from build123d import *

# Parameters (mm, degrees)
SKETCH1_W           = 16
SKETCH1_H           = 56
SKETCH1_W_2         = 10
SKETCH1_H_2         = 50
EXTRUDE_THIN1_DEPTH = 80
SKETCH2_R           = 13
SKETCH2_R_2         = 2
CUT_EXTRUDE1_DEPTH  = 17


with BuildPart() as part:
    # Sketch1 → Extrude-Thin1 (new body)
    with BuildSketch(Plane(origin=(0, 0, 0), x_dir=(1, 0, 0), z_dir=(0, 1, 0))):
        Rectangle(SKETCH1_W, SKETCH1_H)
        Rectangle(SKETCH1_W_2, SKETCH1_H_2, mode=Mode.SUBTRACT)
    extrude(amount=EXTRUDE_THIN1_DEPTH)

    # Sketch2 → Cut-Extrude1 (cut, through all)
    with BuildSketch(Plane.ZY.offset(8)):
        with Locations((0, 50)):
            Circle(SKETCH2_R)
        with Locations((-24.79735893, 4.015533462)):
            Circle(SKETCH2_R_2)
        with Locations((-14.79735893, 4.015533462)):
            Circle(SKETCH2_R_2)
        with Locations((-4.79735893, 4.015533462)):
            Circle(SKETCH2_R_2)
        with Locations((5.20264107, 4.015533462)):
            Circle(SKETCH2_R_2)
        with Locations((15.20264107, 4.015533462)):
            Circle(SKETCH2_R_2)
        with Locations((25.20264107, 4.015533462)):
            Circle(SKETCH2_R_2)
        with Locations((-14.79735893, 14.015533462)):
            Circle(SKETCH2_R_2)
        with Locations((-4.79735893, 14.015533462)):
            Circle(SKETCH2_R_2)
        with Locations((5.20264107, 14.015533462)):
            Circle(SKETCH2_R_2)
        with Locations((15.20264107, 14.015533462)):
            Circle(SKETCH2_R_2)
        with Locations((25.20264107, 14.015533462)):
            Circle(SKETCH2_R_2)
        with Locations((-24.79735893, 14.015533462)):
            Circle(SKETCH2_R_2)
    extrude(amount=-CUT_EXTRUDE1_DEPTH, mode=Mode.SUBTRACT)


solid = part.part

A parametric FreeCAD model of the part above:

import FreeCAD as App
import Part
import Sketcher

V = App.Vector
Q = App.Units.Quantity

doc = App.newDocument("Part")
body = doc.addObject("PartDesign::Body", "Body")

sketch1 = body.newObject("Sketcher::SketchObject", "Sketch")
sketch1.AttachmentSupport = (doc.getObject("XZ_Plane"), [""])
sketch1.MapMode = "FlatFace"
sketch1.addGeometry([
    Part.LineSegment(V(-8, -28, 0), V(-8, 28, 0)),
    Part.LineSegment(V(-8, 28, 0), V(8, 28, 0)),
    Part.LineSegment(V(8, 28, 0), V(8, -28, 0)),
    Part.LineSegment(V(8, -28, 0), V(-8, -28, 0)),
    Part.LineSegment(V(5, 25, 0), V(-5, 25, 0)),
    Part.LineSegment(V(-5, 25, 0), V(-5, -25, 0)),
    Part.LineSegment(V(-5, -25, 0), V(5, -25, 0)),
    Part.LineSegment(V(5, -25, 0), V(5, 25, 0)),
], False)
sketch1.addConstraint([
    Sketcher.Constraint("Coincident", 0, 2, 1, 1),
    Sketcher.Constraint("Coincident", 1, 2, 2, 1),
    Sketcher.Constraint("Coincident", 2, 2, 3, 1),
    Sketcher.Constraint("Coincident", 3, 2, 0, 1),
    Sketcher.Constraint("Coincident", 4, 2, 5, 1),
    Sketcher.Constraint("Coincident", 5, 2, 6, 1),
    Sketcher.Constraint("Coincident", 6, 2, 7, 1),
    Sketcher.Constraint("Coincident", 7, 2, 4, 1),
    Sketcher.Constraint("Vertical", 0),
    Sketcher.Constraint("Horizontal", 1),
    Sketcher.Constraint("Vertical", 2),
    Sketcher.Constraint("Horizontal", 3),
    Sketcher.Constraint("Horizontal", 4),
    Sketcher.Constraint("Vertical", 5),
    Sketcher.Constraint("Horizontal", 6),
    Sketcher.Constraint("Vertical", 7),
    Sketcher.Constraint("Symmetric", 0, 2, 2, 2, -1, 1),
    Sketcher.Constraint("Symmetric", 4, 2, 6, 2, -1, 1),
    Sketcher.Constraint("DistanceX", 1, 1, 1, 2, Q("16 mm")),
    Sketcher.Constraint("DistanceX", 4, 2, 4, 1, Q("10 mm")),
    Sketcher.Constraint("DistanceY", 0, 1, 0, 2, Q("56 mm")),
    Sketcher.Constraint("DistanceY", 5, 2, 5, 1, Q("50 mm")),
])
pad1 = body.newObject("PartDesign::Pad", "Pad")
pad1.Profile = sketch1
pad1.Length = 80
pad1.Reversed = True

sketch2 = body.newObject("Sketcher::SketchObject", "Sketch001")
sketch2.AttachmentSupport = (doc.getObject("YZ_Plane"), [""])
sketch2.MapMode = "FlatFace"
sketch2.AttachmentOffset = App.Placement(V(0, 0, -8), App.Rotation())
sketch2.addGeometry([
    Part.Circle(V(50, 0, 0), V(0, 0, 1), 13),
    Part.Circle(V(4.015533, -24.797359, 0), V(0, 0, 1), 2),
    Part.Circle(V(4.015533, -14.797359, 0), V(0, 0, 1), 2),
    Part.Circle(V(4.015533, -4.797359, 0), V(0, 0, 1), 2),
    Part.Circle(V(4.015533, 5.202641, 0), V(0, 0, 1), 2),
    Part.Circle(V(4.015533, 15.202641, 0), V(0, 0, 1), 2),
    Part.Circle(V(4.015533, 25.202641, 0), V(0, 0, 1), 2),
    Part.Circle(V(14.015533, -14.797359, 0), V(0, 0, 1), 2),
    Part.Circle(V(14.015533, -4.797359, 0), V(0, 0, 1), 2),
    Part.Circle(V(14.015533, 5.202641, 0), V(0, 0, 1), 2),
    Part.Circle(V(14.015533, 15.202641, 0), V(0, 0, 1), 2),
    Part.Circle(V(14.015533, 25.202641, 0), V(0, 0, 1), 2),
    Part.Circle(V(14.015533, -24.797359, 0), V(0, 0, 1), 2),
], False)
sketch2.addConstraint([
    Sketcher.Constraint("Equal", 1, 2),
    Sketcher.Constraint("Equal", 2, 3),
    Sketcher.Constraint("Equal", 3, 4),
    Sketcher.Constraint("Equal", 4, 5),
    Sketcher.Constraint("Equal", 5, 6),
    Sketcher.Constraint("Equal", 6, 7),
    Sketcher.Constraint("Equal", 7, 8),
    Sketcher.Constraint("Equal", 8, 9),
    Sketcher.Constraint("Equal", 9, 10),
    Sketcher.Constraint("Equal", 10, 11),
    Sketcher.Constraint("Equal", 11, 12),
    Sketcher.Constraint("PointOnObject", 0, 3, -1),
    Sketcher.Constraint("Horizontal", 2, 3, 7, 3),
    Sketcher.Constraint("Horizontal", 3, 3, 8, 3),
    Sketcher.Constraint("Horizontal", 4, 3, 9, 3),
    Sketcher.Constraint("Horizontal", 5, 3, 10, 3),
    Sketcher.Constraint("Horizontal", 6, 3, 11, 3),
    Sketcher.Constraint("Horizontal", 1, 3, 12, 3),
    Sketcher.Constraint("Vertical", 1, 3, 2, 3),
    Sketcher.Constraint("Vertical", 2, 3, 3, 3),
    Sketcher.Constraint("Vertical", 3, 3, 4, 3),
    Sketcher.Constraint("Vertical", 4, 3, 5, 3),
    Sketcher.Constraint("Vertical", 5, 3, 6, 3),
    Sketcher.Constraint("Vertical", 7, 3, 8, 3),
    Sketcher.Constraint("Vertical", 8, 3, 9, 3),
    Sketcher.Constraint("Vertical", 9, 3, 10, 3),
    Sketcher.Constraint("Vertical", 10, 3, 11, 3),
    Sketcher.Constraint("Vertical", 11, 3, 12, 3),
    Sketcher.Constraint("Diameter", 0, Q("26 mm")),
    Sketcher.Constraint("Diameter", 1, Q("4 mm")),
    Sketcher.Constraint("DistanceX", -1, 1, 0, 3, Q("50 mm")),
    Sketcher.Constraint("DistanceY", 1, 3, 2, 3, Q("10 mm")),
    Sketcher.Constraint("DistanceY", 2, 3, 3, 3, Q("10 mm")),
    Sketcher.Constraint("DistanceY", 3, 3, 4, 3, Q("10 mm")),
    Sketcher.Constraint("DistanceY", 4, 3, 5, 3, Q("10 mm")),
    Sketcher.Constraint("DistanceY", 5, 3, 6, 3, Q("10 mm")),
    Sketcher.Constraint("DistanceX", 2, 3, 7, 3, Q("10 mm")),
    Sketcher.Constraint("DistanceY", 1, 3, -1, 1, Q("24.797359 mm")),
    Sketcher.Constraint("DistanceX", -1, 1, 1, 3, Q("4.015533 mm")),
])
pocket1 = body.newObject("PartDesign::Pocket", "Pocket")
pocket1.Profile = sketch2
pocket1.Type = "ThroughAll"
pocket1.Reversed = True

doc.recompute()
